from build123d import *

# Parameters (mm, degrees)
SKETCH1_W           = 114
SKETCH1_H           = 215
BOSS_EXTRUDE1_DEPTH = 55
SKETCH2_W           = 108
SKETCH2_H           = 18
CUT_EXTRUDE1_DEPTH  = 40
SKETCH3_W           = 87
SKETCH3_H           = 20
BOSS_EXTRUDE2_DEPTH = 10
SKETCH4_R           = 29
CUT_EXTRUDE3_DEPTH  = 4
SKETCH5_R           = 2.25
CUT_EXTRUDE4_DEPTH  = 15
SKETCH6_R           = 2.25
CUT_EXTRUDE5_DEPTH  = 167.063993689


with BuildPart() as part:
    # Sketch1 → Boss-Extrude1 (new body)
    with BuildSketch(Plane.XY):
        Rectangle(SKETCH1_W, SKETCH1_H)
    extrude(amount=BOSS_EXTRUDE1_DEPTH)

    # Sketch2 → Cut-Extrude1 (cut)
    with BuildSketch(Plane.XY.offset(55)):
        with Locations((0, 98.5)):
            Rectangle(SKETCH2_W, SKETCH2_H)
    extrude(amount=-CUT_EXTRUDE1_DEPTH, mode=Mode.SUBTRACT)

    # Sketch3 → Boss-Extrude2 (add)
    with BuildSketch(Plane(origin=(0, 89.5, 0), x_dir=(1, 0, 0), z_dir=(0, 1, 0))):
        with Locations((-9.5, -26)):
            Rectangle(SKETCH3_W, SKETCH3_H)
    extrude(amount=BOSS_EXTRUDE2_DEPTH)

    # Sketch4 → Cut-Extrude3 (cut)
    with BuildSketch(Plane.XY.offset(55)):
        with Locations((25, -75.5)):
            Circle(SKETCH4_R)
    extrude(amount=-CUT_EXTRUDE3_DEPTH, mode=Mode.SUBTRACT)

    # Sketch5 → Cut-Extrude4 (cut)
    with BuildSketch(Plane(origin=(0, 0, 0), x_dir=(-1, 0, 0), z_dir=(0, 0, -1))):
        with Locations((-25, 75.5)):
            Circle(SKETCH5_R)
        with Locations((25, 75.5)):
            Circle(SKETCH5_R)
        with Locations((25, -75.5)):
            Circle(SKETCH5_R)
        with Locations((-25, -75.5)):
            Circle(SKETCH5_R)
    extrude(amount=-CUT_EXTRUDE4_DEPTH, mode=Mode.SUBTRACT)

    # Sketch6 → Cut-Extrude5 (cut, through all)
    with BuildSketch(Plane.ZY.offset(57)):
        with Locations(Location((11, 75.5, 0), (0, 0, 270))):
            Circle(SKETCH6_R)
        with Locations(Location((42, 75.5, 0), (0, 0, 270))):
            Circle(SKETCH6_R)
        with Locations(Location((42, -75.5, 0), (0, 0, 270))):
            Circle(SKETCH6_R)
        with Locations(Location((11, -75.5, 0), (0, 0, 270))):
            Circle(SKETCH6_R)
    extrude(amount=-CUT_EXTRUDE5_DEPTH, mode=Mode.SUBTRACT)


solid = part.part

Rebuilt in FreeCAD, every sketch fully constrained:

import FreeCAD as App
import Part
import Sketcher

V = App.Vector
Q = App.Units.Quantity

doc = App.newDocument("Part")
body = doc.addObject("PartDesign::Body", "Body")

sketch1 = body.newObject("Sketcher::SketchObject", "Sketch")
sketch1.AttachmentSupport = (doc.getObject("XY_Plane"), [""])
sketch1.MapMode = "FlatFace"
sketch1.addGeometry([
    Part.LineSegment(V(-57, 107.5, 0), V(-57, -107.5, 0)),
    Part.LineSegment(V(-57, -107.5, 0), V(57, -107.5, 0)),
    Part.LineSegment(V(57, -107.5, 0), V(57, 107.5, 0)),
    Part.LineSegment(V(57, 107.5, 0), V(-57, 107.5, 0)),
], False)
sketch1.addConstraint([
    Sketcher.Constraint("Coincident", 0, 2, 1, 1),
    Sketcher.Constraint("Coincident", 1, 2, 2, 1),
    Sketcher.Constraint("Coincident", 2, 2, 3, 1),
    Sketcher.Constraint("Coincident", 3, 2, 0, 1),
    Sketcher.Constraint("Vertical", 0),
    Sketcher.Constraint("Horizontal", 1),
    Sketcher.Constraint("Vertical", 2),
    Sketcher.Constraint("Horizontal", 3),
    Sketcher.Constraint("Symmetric", 0, 2, 2, 2, -1, 1),
    Sketcher.Constraint("DistanceX", 1, 1, 1, 2, Q("114 mm")),
    Sketcher.Constraint("DistanceY", 0, 2, 0, 1, Q("215 mm")),
])
pad1 = body.newObject("PartDesign::Pad", "Pad")
pad1.Profile = sketch1
pad1.Length = 55

sketch2 = body.newObject("Sketcher::SketchObject", "Sketch001")
sketch2.AttachmentSupport = (doc.getObject("XY_Plane"), [""])
sketch2.MapMode = "FlatFace"
sketch2.AttachmentOffset = App.Placement(V(0, 0, 55), App.Rotation())
sketch2.addGeometry([
    Part.LineSegment(V(-54, 107.5, 0), V(-54, 89.5, 0)),
    Part.LineSegment(V(-54, 89.5, 0), V(54, 89.5, 0)),
    Part.LineSegment(V(54, 89.5, 0), V(54, 107.5, 0)),
    Part.LineSegment(V(54, 107.5, 0), V(-54, 107.5, 0)),
], False)
sketch2.addConstraint([
    Sketcher.Constraint("Coincident", 0, 2, 1, 1),
    Sketcher.Constraint("Coincident", 1, 2, 2, 1),
    Sketcher.Constraint("Coincident", 2, 2, 3, 1),
    Sketcher.Constraint("Coincident", 3, 2, 0, 1),
    Sketcher.Constraint("Vertical", 0),
    Sketcher.Constraint("Horizontal", 1),
    Sketcher.Constraint("Vertical", 2),
    Sketcher.Constraint("Horizontal", 3),
    Sketcher.Constraint("DistanceX", 1, 1, 1, 2, Q("108 mm")),
    Sketcher.Constraint("DistanceY", 0, 2, 0, 1, Q("18 mm")),
    Sketcher.Constraint("DistanceX", 0, 2, -1, 1, Q("54 mm")),
    Sketcher.Constraint("DistanceY", -1, 1, 0, 2, Q("89.5 mm")),
])
pocket1 = body.newObject("PartDesign::Pocket", "Pocket")
pocket1.Profile = sketch2
pocket1.Length = 40

sketch3 = body.newObject("Sketcher::SketchObject", "Sketch002")
sketch3.AttachmentSupport = (doc.getObject("XZ_Plane"), [""])
sketch3.MapMode = "FlatFace"
sketch3.AttachmentOffset = App.Placement(V(0, 0, -89.5), App.Rotation())
sketch3.addGeometry([
    Part.LineSegment(V(-53, 16, 0), V(-53, 36, 0)),
    Part.LineSegment(V(-53, 36, 0), V(34, 36, 0)),
    Part.LineSegment(V(34, 36, 0), V(34, 16, 0)),
    Part.LineSegment(V(34, 16, 0), V(-53, 16, 0)),
], False)
sketch3.addConstraint([
    Sketcher.Constraint("Coincident", 0, 2, 1, 1),
    Sketcher.Constraint("Coincident", 1, 2, 2, 1),
    Sketcher.Constraint("Coincident", 2, 2, 3, 1),
    Sketcher.Constraint("Coincident", 3, 2, 0, 1),
    Sketcher.Constraint("Vertical", 0),
    Sketcher.Constraint("Horizontal", 1),
    Sketcher.Constraint("Vertical", 2),
    Sketcher.Constraint("Horizontal", 3),
    Sketcher.Constraint("DistanceX", 1, 1, 1, 2, Q("87 mm")),
    Sketcher.Constraint("DistanceY", 0, 1, 0, 2, Q("20 mm")),
    Sketcher.Constraint("DistanceX", 0, 2, -1, 1, Q("53 mm")),
    Sketcher.Constraint("DistanceY", -1, 1, 0, 2, Q("36 mm")),
])
pad2 = body.newObject("PartDesign::Pad", "Pad001")
pad2.Profile = sketch3
pad2.Length = 10
pad2.Reversed = True

sketch4 = body.newObject("Sketcher::SketchObject", "Sketch003")
sketch4.AttachmentSupport = (doc.getObject("XY_Plane"), [""])
sketch4.MapMode = "FlatFace"
sketch4.AttachmentOffset = App.Placement(V(0, 0, 55), App.Rotation())
sketch4.addGeometry(Part.Circle(V(25, -75.5, 0), V(0, 0, 1), 29), False)
sketch4.addConstraint([
    Sketcher.Constraint("Diameter", 0, Q("58 mm")),
    Sketcher.Constraint("DistanceX", -1, 1, 0, 3, Q("25 mm")),
    Sketcher.Constraint("DistanceY", 0, 3, -1, 1, Q("75.5 mm")),
])
pocket2 = body.newObject("PartDesign::Pocket", "Pocket001")
pocket2.Profile = sketch4
pocket2.Length = 4

sketch5 = body.newObject("Sketcher::SketchObject", "Sketch004")
sketch5.AttachmentSupport = (doc.getObject("XY_Plane"), [""])
sketch5.MapMode = "FlatFace"
sketch5.addGeometry([
    Part.Circle(V(25, 75.5, 0), V(0, 0, 1), 2.25),
    Part.Circle(V(-25, 75.5, 0), V(0, 0, 1), 2.25),
    Part.Circle(V(-25, -75.5, 0), V(0, 0, 1), 2.25),
    Part.Circle(V(25, -75.5, 0), V(0, 0, 1), 2.25),
], False)
sketch5.addConstraint([
    Sketcher.Constraint("Equal", 0, 1),
    Sketcher.Constraint("Equal", 1, 2),
    Sketcher.Constraint("Equal", 2, 3),
    Sketcher.Constraint("Symmetric", 0, 3, 2, 3, -1, 1),
    Sketcher.Constraint("Symmetric", 1, 3, 3, 3, -1, 1),
    Sketcher.Constraint("Symmetric", 0, 3, 1, 3, -2),
    Sketcher.Constraint("Diameter", 0, Q("4.5 mm")),
    Sketcher.Constraint("DistanceX", -1, 1, 0, 3, Q("25 mm")),
    Sketcher.Constraint("DistanceY", 2, 3, 1, 3, Q("151 mm")),
])
pocket3 = body.newObject("PartDesign::Pocket", "Pocket002")
pocket3.Profile = sketch5
pocket3.Length = 15
pocket3.Reversed = True

sketch6 = body.newObject("Sketcher::SketchObject", "Sketch005")
sketch6.AttachmentSupport = (doc.getObject("YZ_Plane"), [""])
sketch6.MapMode = "FlatFace"
sketch6.AttachmentOffset = App.Placement(V(0, 0, -57), App.Rotation())
sketch6.addGeometry([
    Part.Circle(V(75.5, 11, 0), V(0, 0, 1), 2.25),
    Part.Circle(V(75.5, 42, 0), V(0, 0, 1), 2.25),
    Part.Circle(V(-75.5, 42, 0), V(0, 0, 1), 2.25),
    Part.Circle(V(-75.5, 11, 0), V(0, 0, 1), 2.25),
], False)
sketch6.addConstraint([
    Sketcher.Constraint("Equal", 0, 1),
    Sketcher.Constraint("Equal", 1, 2),
    Sketcher.Constraint("Equal", 2, 3),
    Sketcher.Constraint("Symmetric", 1, 3, 2, 3, -2),
    Sketcher.Constraint("Symmetric", 0, 3, 3, 3, -2),
    Sketcher.Constraint("Vertical", 0, 3, 1, 3),
    Sketcher.Constraint("Diameter", 0, Q("4.5 mm")),
    Sketcher.Constraint("DistanceY", -1, 1, 0, 3, Q("11 mm")),
    Sketcher.Constraint("DistanceY", -1, 1, 1, 3, Q("42 mm")),
    Sketcher.Constraint("DistanceX", 2, 3, 1, 3, Q("151 mm")),
])
pocket4 = body.newObject("PartDesign::Pocket", "Pocket003")
pocket4.Profile = sketch6
pocket4.Type = "ThroughAll"
pocket4.Reversed = True

doc.recompute()
